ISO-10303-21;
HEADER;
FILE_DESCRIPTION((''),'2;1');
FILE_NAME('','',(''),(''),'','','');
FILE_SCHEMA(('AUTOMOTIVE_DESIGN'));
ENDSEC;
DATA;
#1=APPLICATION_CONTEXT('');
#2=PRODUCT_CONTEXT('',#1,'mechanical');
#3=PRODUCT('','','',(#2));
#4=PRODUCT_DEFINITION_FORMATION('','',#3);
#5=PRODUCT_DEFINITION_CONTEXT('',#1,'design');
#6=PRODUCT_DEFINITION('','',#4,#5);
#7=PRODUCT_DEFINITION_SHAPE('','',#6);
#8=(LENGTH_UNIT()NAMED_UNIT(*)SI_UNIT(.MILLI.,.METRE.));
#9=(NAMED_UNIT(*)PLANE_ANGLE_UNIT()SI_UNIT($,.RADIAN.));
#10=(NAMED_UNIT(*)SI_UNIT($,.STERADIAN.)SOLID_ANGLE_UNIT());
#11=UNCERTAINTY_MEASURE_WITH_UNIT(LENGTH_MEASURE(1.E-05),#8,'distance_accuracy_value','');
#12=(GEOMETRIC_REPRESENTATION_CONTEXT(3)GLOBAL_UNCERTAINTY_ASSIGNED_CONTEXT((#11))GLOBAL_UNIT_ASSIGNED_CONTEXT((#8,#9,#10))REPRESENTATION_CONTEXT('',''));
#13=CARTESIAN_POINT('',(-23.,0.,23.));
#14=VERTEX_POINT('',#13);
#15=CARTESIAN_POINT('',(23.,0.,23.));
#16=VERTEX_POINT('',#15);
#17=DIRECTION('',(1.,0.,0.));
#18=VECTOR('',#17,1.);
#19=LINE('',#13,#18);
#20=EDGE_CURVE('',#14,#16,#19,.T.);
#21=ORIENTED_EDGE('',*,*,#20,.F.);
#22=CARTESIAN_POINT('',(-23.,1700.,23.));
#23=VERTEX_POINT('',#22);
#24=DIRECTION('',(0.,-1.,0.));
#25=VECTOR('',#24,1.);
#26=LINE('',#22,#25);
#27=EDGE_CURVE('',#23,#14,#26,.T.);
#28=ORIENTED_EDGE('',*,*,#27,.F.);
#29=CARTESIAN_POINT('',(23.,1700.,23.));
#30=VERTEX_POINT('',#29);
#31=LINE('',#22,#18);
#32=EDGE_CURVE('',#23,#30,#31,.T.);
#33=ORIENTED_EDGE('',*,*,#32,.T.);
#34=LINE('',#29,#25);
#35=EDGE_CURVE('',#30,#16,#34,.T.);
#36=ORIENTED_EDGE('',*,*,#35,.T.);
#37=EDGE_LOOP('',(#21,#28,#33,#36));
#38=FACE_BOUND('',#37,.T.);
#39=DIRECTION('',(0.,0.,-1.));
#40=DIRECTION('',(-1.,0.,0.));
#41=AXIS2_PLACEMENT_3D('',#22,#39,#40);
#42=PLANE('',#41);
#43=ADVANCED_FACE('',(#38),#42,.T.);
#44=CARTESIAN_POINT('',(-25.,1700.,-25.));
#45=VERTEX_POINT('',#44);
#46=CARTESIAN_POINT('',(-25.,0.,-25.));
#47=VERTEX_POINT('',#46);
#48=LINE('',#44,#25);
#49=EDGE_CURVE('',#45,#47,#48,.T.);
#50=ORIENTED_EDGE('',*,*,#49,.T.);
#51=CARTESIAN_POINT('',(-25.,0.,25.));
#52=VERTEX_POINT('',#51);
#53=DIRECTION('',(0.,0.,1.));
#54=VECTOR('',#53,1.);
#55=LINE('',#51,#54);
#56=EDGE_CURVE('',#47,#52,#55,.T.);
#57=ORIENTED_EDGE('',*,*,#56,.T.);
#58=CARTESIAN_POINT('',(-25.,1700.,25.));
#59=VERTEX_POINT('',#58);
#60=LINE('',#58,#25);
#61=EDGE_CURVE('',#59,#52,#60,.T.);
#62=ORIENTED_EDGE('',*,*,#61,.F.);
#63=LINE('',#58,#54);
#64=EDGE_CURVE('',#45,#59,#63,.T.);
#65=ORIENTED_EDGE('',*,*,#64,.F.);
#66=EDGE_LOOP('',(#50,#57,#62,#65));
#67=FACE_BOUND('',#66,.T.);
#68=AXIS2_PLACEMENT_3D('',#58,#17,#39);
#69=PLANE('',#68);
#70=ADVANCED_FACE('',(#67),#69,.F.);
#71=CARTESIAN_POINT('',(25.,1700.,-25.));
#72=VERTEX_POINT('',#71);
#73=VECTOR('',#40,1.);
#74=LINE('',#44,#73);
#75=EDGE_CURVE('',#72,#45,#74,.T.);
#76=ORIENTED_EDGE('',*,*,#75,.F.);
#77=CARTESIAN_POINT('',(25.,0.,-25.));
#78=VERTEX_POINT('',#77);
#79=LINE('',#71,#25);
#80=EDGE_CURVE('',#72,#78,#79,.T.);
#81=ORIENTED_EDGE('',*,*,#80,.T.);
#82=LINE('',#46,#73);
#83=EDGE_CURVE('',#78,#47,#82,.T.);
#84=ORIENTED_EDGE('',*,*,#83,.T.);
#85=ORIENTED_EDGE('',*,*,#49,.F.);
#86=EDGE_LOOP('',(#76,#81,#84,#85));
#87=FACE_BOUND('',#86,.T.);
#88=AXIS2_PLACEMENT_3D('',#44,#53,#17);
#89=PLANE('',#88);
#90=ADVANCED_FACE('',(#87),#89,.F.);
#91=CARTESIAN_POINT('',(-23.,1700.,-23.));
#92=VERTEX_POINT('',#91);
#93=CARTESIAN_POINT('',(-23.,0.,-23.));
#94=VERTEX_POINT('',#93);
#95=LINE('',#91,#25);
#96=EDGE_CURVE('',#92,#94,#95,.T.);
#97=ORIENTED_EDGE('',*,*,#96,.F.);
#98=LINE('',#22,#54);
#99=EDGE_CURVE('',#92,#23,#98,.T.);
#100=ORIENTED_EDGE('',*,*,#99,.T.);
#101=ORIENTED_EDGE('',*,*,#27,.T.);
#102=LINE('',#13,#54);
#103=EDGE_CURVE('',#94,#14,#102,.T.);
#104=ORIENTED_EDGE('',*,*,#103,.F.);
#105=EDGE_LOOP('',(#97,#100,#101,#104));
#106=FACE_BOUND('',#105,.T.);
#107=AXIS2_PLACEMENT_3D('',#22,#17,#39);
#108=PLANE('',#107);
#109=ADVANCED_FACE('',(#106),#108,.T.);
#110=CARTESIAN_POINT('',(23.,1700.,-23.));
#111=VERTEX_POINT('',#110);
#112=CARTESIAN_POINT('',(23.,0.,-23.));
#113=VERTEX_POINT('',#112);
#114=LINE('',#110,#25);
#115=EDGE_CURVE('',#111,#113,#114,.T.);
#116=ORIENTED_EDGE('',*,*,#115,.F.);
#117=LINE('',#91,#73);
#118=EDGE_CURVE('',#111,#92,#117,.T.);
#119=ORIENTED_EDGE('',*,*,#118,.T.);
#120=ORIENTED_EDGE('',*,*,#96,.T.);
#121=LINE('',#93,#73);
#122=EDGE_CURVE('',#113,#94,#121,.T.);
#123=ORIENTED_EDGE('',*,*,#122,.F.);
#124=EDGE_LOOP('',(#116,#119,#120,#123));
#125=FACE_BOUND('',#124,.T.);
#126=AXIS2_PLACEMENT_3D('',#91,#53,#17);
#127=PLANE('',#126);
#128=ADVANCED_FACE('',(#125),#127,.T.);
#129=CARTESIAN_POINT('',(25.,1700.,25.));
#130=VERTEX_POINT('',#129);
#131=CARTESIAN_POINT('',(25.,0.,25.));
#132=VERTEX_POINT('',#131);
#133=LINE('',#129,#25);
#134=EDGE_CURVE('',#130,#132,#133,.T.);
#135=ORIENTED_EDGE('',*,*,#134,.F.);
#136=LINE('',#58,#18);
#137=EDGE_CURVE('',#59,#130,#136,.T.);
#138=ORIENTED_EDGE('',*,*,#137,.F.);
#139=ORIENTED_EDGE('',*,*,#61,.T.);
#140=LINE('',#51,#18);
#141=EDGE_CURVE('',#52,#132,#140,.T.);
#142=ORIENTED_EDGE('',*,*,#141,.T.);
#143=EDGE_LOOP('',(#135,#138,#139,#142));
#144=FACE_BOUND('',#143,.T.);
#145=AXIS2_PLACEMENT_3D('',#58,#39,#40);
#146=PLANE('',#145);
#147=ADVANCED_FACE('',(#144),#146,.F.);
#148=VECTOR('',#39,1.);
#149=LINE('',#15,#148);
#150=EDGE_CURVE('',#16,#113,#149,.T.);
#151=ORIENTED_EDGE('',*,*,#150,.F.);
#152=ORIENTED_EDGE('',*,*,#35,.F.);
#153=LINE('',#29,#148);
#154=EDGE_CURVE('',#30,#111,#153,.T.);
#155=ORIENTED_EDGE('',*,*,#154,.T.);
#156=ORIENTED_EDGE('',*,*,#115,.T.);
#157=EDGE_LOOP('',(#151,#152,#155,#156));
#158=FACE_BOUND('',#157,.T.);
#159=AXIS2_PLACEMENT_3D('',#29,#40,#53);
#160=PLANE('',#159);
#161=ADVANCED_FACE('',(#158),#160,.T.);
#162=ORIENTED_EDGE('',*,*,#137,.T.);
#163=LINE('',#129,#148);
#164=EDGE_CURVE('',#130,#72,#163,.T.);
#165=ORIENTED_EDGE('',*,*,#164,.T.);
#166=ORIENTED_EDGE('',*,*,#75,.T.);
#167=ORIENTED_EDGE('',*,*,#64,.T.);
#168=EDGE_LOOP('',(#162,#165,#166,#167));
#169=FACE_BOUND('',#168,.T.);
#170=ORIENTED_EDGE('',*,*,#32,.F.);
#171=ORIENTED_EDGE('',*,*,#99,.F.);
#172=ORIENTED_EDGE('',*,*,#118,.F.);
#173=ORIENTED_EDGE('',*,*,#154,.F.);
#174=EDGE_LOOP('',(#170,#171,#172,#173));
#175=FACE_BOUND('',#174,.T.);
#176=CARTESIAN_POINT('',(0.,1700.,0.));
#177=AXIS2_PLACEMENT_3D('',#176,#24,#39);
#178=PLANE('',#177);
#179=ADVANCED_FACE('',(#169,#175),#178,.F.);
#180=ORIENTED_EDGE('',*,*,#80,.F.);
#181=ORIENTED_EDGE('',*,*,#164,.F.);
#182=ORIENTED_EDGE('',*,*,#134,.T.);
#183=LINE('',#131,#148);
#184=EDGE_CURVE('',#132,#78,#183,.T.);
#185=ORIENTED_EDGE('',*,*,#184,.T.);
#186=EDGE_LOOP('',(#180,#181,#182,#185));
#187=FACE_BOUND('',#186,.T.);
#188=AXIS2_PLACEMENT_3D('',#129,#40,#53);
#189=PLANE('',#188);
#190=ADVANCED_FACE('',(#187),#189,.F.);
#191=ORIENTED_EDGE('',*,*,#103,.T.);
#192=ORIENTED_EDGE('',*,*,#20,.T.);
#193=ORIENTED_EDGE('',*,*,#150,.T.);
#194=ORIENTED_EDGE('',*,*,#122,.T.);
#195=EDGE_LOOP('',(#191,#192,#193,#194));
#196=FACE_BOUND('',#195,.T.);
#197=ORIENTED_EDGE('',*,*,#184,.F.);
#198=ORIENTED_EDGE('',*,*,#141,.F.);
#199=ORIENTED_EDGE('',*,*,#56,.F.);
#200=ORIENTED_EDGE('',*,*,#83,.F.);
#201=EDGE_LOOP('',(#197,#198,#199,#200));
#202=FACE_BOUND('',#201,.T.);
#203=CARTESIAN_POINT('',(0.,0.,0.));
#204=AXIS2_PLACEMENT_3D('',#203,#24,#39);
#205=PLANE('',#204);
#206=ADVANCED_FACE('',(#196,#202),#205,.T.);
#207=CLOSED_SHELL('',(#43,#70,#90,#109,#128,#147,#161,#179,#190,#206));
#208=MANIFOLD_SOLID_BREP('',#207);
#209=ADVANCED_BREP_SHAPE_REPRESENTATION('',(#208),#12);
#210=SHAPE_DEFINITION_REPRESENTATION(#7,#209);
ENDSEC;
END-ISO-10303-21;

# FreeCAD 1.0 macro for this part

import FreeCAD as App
import Part
import Sketcher
Q = App.Units.Quantity


def add_polygon(sketch, points):
    """Adds a closed chain of lines whose ends are joined by coincident constraints."""
    first, n = sketch.GeometryCount, len(points)
    for a, b in zip(points, points[1:] + points[:1]):
        sketch.addGeometry(Part.LineSegment(App.Vector(*a, 0), App.Vector(*b, 0)), False)
    for i in range(n):
        sketch.addConstraint(Sketcher.Constraint("Coincident", first + i, 2, first + (i + 1) % n, 1))

doc = App.newDocument("Part")
body = doc.addObject("PartDesign::Body", "Body")

# Sketch on XZ plane
sketch1 = doc.addObject("Sketcher::SketchObject", "Sketch")
body.addObject(sketch1)
sketch1.AttachmentSupport = (doc.XZ_Plane, [""])
sketch1.MapMode = "FlatFace"
add_polygon(sketch1, [(-25, -25), (-25, 25), (25, 25), (25, -25)])  # lines 0-3
add_polygon(sketch1, [(23, 23), (-23, 23), (-23, -23), (23, -23)])  # lines 4-7
sketch1.addConstraint([
    Sketcher.Constraint("Vertical", 0),
    Sketcher.Constraint("Horizontal", 1),
    Sketcher.Constraint("Vertical", 2),
    Sketcher.Constraint("Horizontal", 3),
    Sketcher.Constraint("Horizontal", 4),
    Sketcher.Constraint("Vertical", 5),
    Sketcher.Constraint("Horizontal", 6),
    Sketcher.Constraint("Vertical", 7),
    Sketcher.Constraint("Symmetric", 0, 2, 2, 2, -1, 1),
    Sketcher.Constraint("Symmetric", 4, 2, 6, 2, -1, 1),
    Sketcher.Constraint("Equal", 3, 0),
    Sketcher.Constraint("Equal", 6, 5),
    Sketcher.Constraint("DistanceX", 1, 1, 1, 2, Q("50 mm")),
    Sketcher.Constraint("DistanceX", 4, 2, 4, 1, Q("46 mm")),
])
pad1 = doc.addObject("PartDesign::Pad", "Pad")
body.addObject(pad1)
pad1.Profile = sketch1
pad1.Length = 1700
pad1.Reversed = True

doc.recompute()
